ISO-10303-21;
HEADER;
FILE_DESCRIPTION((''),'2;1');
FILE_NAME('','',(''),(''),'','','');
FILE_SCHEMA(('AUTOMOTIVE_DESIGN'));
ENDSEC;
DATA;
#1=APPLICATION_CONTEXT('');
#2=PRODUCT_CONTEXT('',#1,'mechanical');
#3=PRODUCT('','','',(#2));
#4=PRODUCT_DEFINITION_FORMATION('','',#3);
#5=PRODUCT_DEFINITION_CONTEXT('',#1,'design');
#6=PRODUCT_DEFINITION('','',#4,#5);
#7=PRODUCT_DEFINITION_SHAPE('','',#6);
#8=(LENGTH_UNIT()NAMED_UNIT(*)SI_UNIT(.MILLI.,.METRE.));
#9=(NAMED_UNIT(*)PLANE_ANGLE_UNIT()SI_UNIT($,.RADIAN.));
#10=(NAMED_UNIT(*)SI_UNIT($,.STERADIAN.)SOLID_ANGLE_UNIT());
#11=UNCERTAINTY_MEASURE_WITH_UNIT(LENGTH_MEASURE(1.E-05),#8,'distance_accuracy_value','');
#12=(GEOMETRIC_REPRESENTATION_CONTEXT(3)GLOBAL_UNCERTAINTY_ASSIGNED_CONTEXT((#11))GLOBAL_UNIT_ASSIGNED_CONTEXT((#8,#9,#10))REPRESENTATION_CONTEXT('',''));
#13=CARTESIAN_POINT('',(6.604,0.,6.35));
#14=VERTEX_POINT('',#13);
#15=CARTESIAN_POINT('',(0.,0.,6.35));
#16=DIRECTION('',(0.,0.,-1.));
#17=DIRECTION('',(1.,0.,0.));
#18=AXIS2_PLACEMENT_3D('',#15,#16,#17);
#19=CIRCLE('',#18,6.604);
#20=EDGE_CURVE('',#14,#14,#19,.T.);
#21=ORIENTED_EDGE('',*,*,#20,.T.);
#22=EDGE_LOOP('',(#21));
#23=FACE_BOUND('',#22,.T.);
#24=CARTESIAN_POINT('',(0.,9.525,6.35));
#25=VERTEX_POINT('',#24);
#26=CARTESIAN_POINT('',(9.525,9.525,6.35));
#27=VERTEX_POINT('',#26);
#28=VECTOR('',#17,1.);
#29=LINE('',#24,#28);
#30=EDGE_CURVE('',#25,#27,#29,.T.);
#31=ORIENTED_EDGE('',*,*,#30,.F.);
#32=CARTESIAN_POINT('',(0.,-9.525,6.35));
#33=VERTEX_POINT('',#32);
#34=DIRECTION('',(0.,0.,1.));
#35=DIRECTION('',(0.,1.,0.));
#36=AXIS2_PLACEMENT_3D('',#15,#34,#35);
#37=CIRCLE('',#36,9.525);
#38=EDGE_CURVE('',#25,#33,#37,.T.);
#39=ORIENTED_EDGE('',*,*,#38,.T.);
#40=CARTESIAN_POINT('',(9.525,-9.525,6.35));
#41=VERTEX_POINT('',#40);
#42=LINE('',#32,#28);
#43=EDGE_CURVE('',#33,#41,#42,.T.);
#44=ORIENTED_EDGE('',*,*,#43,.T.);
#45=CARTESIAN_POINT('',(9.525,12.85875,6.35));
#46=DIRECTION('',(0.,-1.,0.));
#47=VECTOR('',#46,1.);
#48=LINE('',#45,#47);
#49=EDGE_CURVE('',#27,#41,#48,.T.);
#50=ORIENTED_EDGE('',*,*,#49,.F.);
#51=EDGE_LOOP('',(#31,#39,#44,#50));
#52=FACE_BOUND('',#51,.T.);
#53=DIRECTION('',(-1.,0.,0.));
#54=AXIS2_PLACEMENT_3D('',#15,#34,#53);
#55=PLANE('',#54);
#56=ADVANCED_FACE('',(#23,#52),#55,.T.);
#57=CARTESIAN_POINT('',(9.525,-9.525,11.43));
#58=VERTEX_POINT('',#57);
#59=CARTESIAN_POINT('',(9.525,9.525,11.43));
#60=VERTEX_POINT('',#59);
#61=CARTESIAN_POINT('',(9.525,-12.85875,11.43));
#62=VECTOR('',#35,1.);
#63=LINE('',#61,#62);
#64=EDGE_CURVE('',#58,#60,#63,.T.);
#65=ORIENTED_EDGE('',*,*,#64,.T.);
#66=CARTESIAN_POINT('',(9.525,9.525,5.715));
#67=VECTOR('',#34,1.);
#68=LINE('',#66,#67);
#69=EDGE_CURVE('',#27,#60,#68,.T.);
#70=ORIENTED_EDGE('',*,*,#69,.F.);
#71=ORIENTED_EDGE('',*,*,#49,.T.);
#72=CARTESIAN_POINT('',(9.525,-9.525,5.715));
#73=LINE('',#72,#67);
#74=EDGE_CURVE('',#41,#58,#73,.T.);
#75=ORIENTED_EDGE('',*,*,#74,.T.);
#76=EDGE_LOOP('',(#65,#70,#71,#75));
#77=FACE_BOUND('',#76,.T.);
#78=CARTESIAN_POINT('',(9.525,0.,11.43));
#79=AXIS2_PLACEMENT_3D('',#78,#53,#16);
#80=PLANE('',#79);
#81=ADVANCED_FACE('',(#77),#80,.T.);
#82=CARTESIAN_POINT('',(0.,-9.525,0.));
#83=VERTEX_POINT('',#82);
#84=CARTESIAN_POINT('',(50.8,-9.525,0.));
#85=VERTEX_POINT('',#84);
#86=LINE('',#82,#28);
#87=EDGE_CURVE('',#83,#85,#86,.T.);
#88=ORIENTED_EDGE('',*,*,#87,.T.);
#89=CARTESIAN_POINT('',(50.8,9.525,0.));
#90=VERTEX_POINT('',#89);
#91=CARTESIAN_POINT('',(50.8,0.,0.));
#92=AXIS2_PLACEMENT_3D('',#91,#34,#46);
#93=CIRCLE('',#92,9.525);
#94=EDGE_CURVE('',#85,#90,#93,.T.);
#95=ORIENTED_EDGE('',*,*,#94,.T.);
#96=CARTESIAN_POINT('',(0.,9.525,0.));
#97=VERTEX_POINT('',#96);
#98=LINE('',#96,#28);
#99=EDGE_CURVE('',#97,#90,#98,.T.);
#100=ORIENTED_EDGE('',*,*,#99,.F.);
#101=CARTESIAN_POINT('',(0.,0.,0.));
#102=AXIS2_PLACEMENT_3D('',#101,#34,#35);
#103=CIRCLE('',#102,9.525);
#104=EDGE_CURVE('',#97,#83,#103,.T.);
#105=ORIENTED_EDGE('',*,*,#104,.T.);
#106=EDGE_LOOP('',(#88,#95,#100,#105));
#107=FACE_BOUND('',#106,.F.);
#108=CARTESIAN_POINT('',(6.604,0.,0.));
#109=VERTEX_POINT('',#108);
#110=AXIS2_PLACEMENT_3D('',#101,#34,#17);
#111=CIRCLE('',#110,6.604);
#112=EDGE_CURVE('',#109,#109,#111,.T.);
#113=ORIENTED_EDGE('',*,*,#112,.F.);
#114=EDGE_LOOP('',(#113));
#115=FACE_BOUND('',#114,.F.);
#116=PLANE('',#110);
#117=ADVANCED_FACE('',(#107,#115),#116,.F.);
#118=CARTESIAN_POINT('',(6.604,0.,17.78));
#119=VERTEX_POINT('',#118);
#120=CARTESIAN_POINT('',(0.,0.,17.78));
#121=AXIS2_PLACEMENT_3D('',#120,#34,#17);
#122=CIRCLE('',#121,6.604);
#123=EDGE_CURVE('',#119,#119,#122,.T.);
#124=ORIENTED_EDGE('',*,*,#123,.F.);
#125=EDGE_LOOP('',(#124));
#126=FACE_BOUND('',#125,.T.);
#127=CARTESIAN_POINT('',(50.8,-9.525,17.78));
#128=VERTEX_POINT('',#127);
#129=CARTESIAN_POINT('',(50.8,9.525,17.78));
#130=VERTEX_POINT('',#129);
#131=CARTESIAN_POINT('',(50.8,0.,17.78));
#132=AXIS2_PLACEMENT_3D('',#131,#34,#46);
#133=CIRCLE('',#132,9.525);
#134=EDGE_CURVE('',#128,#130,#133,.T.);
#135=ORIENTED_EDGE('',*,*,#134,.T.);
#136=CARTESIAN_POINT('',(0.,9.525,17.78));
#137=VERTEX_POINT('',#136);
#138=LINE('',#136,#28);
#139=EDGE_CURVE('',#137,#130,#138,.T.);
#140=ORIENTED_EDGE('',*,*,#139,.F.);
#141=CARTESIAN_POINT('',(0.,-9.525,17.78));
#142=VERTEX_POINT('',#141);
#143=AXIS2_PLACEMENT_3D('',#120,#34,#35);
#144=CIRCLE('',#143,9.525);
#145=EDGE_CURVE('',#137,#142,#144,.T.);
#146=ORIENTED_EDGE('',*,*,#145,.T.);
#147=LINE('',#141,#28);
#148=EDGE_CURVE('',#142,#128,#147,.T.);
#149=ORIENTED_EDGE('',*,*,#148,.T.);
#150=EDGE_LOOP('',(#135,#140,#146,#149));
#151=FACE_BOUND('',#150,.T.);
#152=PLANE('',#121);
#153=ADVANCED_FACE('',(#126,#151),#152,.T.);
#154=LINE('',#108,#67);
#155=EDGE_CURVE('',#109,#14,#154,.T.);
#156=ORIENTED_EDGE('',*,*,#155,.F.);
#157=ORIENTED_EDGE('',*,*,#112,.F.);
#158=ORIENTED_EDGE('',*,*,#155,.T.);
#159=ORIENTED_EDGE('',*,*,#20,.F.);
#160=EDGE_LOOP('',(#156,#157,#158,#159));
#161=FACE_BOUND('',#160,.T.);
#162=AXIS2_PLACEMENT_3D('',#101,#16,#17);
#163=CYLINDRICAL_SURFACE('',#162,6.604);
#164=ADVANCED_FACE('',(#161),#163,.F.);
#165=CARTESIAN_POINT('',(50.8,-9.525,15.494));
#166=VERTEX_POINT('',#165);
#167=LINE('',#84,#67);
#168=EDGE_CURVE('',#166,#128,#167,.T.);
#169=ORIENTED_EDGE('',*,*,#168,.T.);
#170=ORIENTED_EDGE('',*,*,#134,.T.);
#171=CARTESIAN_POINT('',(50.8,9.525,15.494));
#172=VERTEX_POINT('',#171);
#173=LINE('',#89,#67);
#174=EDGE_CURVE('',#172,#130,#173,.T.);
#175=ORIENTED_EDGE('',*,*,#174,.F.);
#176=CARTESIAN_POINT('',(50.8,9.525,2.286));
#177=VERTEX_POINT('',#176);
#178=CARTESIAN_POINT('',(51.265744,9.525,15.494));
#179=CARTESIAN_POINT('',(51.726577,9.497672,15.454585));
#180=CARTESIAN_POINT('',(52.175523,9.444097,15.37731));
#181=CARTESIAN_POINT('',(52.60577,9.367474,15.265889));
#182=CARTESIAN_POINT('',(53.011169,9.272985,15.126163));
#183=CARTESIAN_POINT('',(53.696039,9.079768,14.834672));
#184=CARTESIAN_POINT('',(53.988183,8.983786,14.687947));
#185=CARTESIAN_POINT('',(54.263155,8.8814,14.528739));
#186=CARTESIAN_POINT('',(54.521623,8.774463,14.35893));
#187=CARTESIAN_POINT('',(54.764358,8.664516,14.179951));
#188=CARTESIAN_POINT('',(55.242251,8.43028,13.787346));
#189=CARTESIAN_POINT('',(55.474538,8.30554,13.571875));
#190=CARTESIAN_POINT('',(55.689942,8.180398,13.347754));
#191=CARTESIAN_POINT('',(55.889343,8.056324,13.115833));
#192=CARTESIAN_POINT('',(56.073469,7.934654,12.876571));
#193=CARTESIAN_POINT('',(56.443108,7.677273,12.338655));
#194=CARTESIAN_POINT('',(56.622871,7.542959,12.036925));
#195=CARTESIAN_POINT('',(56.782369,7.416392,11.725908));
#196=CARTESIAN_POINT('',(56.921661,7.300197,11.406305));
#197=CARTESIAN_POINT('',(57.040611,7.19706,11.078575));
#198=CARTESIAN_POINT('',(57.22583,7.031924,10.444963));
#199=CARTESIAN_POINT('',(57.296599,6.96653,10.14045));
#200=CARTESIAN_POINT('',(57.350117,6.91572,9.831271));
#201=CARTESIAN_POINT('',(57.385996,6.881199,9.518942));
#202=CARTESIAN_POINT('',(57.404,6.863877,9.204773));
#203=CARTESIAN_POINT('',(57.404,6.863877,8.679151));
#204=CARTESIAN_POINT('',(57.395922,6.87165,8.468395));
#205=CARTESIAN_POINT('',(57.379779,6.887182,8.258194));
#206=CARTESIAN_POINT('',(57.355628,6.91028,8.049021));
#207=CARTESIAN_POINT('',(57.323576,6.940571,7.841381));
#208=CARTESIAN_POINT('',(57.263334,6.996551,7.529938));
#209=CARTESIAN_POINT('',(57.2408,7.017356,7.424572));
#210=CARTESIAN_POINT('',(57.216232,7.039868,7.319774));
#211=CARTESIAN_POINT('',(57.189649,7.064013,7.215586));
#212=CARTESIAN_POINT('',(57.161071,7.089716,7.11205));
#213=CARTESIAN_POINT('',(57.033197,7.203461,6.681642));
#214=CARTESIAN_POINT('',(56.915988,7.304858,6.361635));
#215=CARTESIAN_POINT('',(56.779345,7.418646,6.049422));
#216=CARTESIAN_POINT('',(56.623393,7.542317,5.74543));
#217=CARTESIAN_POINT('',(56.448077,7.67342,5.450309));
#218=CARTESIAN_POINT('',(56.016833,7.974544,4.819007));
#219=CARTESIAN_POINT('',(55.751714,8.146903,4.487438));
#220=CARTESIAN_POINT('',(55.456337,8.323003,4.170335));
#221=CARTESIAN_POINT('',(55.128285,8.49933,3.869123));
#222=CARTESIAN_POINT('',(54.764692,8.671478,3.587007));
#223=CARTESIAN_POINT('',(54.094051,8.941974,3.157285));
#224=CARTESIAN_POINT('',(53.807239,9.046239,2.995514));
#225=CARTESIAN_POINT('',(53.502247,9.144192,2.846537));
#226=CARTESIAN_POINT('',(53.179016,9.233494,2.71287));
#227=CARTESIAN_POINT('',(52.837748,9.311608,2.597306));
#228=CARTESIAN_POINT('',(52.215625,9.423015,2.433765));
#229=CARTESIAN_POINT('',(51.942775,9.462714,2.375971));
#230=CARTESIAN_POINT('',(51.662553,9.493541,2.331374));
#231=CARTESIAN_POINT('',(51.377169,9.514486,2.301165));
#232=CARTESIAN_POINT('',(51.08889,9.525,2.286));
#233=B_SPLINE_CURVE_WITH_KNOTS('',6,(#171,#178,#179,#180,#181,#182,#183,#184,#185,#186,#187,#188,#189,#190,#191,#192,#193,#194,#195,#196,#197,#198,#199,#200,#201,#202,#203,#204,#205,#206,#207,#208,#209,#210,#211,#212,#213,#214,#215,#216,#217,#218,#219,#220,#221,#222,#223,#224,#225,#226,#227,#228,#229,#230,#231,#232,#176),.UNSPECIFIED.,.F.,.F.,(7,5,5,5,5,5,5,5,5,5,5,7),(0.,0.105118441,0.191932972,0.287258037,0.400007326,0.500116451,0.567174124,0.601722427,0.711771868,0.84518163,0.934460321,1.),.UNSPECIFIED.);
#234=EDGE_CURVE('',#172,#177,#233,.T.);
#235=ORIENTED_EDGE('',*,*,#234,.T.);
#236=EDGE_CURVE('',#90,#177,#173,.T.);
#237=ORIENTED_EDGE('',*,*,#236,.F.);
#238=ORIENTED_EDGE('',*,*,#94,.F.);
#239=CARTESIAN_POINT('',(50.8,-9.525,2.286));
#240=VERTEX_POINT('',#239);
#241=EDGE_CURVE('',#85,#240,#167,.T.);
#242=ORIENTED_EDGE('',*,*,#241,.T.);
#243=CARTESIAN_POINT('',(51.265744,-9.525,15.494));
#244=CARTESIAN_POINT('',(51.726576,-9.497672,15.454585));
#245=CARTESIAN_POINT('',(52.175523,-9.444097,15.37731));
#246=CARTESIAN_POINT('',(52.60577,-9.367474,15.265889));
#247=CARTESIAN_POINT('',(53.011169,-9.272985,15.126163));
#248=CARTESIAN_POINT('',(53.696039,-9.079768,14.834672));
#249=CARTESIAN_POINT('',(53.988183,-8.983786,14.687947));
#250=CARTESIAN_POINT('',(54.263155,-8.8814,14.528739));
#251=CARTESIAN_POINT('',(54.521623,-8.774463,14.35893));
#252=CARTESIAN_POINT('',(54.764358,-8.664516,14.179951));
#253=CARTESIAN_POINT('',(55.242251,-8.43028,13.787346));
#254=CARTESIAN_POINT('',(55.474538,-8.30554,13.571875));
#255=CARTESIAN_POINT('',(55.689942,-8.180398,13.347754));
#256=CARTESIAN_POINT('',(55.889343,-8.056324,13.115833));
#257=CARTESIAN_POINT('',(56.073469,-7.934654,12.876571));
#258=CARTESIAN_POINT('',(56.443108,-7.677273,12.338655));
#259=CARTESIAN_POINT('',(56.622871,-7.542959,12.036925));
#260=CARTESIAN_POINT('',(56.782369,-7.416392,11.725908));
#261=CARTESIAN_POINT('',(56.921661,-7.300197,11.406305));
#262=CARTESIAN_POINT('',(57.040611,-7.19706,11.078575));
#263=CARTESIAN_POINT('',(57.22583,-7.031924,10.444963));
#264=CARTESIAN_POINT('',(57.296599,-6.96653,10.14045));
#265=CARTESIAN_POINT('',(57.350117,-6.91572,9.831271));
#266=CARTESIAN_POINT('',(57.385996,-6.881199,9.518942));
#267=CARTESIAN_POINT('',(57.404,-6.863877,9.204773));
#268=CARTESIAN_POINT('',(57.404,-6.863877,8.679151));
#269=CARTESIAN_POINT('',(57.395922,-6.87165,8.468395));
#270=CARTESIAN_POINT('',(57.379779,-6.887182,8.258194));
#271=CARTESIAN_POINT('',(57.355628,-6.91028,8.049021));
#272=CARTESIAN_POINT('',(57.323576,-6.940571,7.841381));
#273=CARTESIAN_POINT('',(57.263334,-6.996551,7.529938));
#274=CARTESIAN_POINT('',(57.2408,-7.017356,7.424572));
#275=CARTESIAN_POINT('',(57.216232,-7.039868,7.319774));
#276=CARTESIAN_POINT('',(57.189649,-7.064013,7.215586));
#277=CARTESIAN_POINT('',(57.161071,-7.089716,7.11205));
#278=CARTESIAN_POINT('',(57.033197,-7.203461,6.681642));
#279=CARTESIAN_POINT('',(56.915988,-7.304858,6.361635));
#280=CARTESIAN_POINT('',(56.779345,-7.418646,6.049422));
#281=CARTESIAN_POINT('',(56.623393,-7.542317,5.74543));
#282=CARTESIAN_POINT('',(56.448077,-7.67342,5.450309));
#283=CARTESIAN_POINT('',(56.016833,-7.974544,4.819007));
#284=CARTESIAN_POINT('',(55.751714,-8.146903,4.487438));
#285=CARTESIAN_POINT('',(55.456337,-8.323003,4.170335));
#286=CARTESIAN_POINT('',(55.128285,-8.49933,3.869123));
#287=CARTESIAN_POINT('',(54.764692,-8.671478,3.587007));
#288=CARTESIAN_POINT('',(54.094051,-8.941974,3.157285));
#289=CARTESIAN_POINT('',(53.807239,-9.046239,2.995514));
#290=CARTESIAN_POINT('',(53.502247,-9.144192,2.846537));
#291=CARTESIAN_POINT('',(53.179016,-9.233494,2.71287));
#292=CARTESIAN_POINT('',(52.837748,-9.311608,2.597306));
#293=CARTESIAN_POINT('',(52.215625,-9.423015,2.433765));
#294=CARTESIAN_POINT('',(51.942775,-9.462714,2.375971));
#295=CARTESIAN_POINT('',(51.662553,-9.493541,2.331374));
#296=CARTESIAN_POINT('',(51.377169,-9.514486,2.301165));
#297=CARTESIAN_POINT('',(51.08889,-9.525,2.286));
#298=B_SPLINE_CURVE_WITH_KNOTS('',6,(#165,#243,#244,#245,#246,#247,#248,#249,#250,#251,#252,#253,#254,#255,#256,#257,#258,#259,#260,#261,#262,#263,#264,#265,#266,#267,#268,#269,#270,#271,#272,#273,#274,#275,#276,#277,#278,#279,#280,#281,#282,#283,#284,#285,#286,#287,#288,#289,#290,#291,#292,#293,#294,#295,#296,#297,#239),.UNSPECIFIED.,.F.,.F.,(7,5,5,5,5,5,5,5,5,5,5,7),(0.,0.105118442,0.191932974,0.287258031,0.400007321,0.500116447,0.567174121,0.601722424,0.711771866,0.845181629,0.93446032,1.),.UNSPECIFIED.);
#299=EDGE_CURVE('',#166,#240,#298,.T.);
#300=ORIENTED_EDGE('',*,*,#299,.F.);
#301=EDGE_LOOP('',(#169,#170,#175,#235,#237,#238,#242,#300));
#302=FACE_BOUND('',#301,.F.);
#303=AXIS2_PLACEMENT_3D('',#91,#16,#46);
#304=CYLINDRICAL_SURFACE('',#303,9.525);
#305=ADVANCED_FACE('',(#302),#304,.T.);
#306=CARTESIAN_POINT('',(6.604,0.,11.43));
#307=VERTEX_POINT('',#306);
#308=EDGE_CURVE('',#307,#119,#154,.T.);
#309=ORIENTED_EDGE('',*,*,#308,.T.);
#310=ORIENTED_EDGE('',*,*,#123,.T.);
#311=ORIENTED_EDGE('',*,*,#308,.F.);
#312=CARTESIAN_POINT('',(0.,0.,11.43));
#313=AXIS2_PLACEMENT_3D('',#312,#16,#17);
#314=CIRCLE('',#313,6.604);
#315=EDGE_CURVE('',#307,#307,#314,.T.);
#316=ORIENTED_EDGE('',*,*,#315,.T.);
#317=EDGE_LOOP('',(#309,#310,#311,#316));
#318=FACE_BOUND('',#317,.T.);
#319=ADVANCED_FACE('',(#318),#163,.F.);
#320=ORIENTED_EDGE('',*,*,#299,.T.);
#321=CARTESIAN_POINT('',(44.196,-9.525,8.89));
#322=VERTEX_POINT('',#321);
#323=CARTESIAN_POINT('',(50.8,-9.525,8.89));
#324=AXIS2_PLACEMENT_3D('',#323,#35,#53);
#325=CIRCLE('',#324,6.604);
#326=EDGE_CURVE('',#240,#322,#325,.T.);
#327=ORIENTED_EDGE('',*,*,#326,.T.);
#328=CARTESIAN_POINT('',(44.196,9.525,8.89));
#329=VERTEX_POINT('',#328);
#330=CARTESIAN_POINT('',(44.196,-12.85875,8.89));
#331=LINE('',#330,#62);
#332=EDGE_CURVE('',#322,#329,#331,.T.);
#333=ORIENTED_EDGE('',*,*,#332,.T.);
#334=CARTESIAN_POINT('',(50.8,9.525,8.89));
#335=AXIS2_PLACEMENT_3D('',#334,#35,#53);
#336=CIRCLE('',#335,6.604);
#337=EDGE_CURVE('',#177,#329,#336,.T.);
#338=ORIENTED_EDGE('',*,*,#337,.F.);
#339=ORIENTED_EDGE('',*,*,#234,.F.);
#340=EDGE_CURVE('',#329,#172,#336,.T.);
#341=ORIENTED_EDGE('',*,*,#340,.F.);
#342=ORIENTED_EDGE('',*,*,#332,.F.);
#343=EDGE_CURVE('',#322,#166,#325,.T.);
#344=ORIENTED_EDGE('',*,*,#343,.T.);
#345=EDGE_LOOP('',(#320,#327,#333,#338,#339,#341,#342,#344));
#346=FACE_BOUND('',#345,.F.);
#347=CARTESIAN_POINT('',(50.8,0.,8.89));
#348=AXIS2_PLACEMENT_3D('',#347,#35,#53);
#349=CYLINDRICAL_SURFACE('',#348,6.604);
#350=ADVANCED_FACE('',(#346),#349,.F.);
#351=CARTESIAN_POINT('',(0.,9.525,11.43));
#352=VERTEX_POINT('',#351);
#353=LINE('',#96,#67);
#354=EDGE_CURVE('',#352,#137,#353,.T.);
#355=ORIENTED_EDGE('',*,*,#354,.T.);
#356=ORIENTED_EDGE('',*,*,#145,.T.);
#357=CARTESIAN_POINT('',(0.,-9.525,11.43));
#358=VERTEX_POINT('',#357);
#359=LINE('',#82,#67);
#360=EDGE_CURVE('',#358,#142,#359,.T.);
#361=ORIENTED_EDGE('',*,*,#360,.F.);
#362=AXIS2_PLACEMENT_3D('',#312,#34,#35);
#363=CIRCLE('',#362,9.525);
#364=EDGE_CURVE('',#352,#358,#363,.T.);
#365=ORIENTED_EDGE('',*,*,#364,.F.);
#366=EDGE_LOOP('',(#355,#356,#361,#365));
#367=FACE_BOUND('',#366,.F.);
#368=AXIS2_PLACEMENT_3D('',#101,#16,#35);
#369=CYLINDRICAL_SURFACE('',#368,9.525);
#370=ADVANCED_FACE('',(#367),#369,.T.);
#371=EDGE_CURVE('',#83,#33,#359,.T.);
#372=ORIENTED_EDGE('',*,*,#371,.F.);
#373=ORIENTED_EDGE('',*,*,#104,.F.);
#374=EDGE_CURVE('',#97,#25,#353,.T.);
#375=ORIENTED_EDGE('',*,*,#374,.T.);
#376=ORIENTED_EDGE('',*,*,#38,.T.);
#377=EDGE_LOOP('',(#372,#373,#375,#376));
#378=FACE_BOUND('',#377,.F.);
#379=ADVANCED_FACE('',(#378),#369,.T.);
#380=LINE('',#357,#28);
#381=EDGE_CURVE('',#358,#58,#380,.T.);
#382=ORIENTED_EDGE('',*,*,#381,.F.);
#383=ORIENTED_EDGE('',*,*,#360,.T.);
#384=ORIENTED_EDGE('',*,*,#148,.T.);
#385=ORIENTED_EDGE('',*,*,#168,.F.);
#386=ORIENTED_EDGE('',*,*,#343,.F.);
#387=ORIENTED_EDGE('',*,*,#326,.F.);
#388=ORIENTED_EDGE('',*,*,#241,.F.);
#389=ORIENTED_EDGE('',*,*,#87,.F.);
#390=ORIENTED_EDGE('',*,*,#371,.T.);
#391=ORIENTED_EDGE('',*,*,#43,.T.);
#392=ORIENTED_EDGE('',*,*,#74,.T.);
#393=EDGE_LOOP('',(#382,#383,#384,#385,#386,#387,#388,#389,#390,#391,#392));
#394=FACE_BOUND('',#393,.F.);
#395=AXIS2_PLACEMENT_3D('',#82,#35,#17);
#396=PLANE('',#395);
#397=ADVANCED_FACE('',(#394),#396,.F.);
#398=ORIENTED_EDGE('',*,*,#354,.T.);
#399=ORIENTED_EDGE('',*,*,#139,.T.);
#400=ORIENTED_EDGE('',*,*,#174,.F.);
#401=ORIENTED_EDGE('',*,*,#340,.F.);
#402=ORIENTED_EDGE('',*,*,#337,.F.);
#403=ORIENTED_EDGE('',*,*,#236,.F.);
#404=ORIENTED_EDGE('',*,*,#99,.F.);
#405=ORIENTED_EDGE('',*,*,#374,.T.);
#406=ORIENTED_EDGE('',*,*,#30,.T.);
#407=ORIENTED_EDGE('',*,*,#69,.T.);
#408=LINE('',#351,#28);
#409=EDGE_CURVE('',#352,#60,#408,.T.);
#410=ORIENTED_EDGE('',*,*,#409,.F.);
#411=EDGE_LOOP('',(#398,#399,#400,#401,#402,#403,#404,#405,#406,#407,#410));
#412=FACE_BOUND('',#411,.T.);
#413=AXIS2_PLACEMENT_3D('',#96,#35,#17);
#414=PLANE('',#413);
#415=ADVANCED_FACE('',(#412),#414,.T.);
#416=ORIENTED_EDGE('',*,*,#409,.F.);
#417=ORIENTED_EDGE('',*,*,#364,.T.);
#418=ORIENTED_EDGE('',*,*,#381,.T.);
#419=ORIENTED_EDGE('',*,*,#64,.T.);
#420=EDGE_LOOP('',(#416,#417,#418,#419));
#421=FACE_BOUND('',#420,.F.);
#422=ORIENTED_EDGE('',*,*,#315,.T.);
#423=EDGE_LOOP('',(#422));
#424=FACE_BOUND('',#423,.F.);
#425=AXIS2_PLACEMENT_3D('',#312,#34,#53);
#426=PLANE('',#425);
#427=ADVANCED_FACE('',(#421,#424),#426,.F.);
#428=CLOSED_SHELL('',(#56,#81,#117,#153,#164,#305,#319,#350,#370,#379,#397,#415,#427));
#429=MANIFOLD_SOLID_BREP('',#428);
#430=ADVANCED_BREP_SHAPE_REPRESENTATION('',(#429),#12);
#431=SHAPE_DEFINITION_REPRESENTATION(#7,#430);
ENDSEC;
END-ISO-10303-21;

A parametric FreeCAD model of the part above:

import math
import FreeCAD as App
import Part
import Sketcher

V = App.Vector
Q = App.Units.Quantity


def add_polygon(sketch, points):
    """Adds a closed chain of lines whose ends are joined by coincident constraints."""
    first, n = sketch.GeometryCount, len(points)
    for a, b in zip(points, points[1:] + points[:1]):
        sketch.addGeometry(Part.LineSegment(App.Vector(*a, 0), App.Vector(*b, 0)), False)
    for i in range(n):
        sketch.addConstraint(Sketcher.Constraint("Coincident", first + i, 2, first + (i + 1) % n, 1))

doc = App.newDocument("Part")
body = doc.addObject("PartDesign::Body", "Body")

# Sketch on XY plane
sketch1 = doc.addObject("Sketcher::SketchObject", "Sketch")
body.addObject(sketch1)
sketch1.AttachmentSupport = (doc.XY_Plane, [""])
sketch1.MapMode = "FlatFace"
sketch1.addGeometry([
    Part.LineSegment(V(51, 10, 0), V(0, 10, 0)),  # 0
    Part.ArcOfCircle(Part.Circle(V(0, 0, 0), V(0, 0, 1), 10), math.radians(90), math.radians(270)),  # 1
    Part.LineSegment(V(0, -10, 0), V(51, -10, 0)),  # 2
    Part.ArcOfCircle(Part.Circle(V(51, 0, 0), V(0, 0, 1), 10), math.radians(-90), math.radians(90)),  # 3
    Part.Circle(V(0, 0, 0), V(0, 0, 1), 7),  # 4
], False)
sketch1.addConstraint([
    Sketcher.Constraint("Tangent", 0, 2, 1, 1),
    Sketcher.Constraint("Tangent", 1, 2, 2, 1),
    Sketcher.Constraint("Tangent", 2, 2, 3, 1),
    Sketcher.Constraint("Tangent", 3, 2, 0, 1),
    Sketcher.Constraint("Horizontal", 0),
    Sketcher.Constraint("Horizontal", 2),
    Sketcher.Constraint("Coincident", 1, 3, -1, 1),
    Sketcher.Constraint("Coincident", 4, 3, -1, 1),
    Sketcher.Constraint("Diameter", 4, Q("0.52 in")),
    Sketcher.Constraint("DistanceX", 0, 2, 0, 1, Q("2 in")),
    Sketcher.Constraint("Radius", 1, Q("0.375 in")),
])
pad1 = doc.addObject("PartDesign::Pad", "Pad")
body.addObject(pad1)
pad1.Profile = sketch1
pad1.Length = Q("0.7 in")

# Sketch on XZ plane
sketch2 = doc.addObject("Sketcher::SketchObject", "Sketch001")
body.addObject(sketch2)
sketch2.AttachmentSupport = (doc.XZ_Plane, [""])
sketch2.MapMode = "FlatFace"
add_polygon(sketch2, [(-10, 11), (10, 11), (10, 6), (-10, 6)])  # lines 0-3
sketch2.addConstraint([
    Sketcher.Constraint("Horizontal", 0),
    Sketcher.Constraint("Vertical", 1),
    Sketcher.Constraint("Horizontal", 2),
    Sketcher.Constraint("Vertical", 3),
    Sketcher.Constraint("DistanceX", 0, 1, 0, 2, Q("0.75 in")),
    Sketcher.Constraint("DistanceY", 1, 2, 1, 1, Q("0.2 in")),
    Sketcher.Constraint("DistanceY", -1, 1, 0, 2, Q("0.45 in")),
    Sketcher.Constraint("DistanceX", -1, 1, 0, 2, Q("0.375 in")),
])
pocket1 = doc.addObject("PartDesign::Pocket", "Pocket")
body.addObject(pocket1)
pocket1.Profile = sketch2
pocket1.Length = Q("1.0125 in")
pocket1.Midplane = True

# Sketch on XZ plane
sketch3 = doc.addObject("Sketcher::SketchObject", "Sketch002")
body.addObject(sketch3)
sketch3.AttachmentSupport = (doc.XZ_Plane, [""])
sketch3.MapMode = "FlatFace"
sketch3.addGeometry(Part.Circle(V(51, 9, 0), V(0, 0, 1), 7), False)
sketch3.addConstraint([
    Sketcher.Constraint("Diameter", 0, Q("0.52 in")),
    Sketcher.Constraint("DistanceX", -1, 1, 0, 3, Q("2 in")),
    Sketcher.Constraint("DistanceY", -1, 1, 0, 3, Q("0.35 in")),
])
pocket2 = doc.addObject("PartDesign::Pocket", "Pocket001")
body.addObject(pocket2)
pocket2.Profile = sketch3
pocket2.Length = Q("1.0125 in")
pocket2.Midplane = True

doc.recompute()
